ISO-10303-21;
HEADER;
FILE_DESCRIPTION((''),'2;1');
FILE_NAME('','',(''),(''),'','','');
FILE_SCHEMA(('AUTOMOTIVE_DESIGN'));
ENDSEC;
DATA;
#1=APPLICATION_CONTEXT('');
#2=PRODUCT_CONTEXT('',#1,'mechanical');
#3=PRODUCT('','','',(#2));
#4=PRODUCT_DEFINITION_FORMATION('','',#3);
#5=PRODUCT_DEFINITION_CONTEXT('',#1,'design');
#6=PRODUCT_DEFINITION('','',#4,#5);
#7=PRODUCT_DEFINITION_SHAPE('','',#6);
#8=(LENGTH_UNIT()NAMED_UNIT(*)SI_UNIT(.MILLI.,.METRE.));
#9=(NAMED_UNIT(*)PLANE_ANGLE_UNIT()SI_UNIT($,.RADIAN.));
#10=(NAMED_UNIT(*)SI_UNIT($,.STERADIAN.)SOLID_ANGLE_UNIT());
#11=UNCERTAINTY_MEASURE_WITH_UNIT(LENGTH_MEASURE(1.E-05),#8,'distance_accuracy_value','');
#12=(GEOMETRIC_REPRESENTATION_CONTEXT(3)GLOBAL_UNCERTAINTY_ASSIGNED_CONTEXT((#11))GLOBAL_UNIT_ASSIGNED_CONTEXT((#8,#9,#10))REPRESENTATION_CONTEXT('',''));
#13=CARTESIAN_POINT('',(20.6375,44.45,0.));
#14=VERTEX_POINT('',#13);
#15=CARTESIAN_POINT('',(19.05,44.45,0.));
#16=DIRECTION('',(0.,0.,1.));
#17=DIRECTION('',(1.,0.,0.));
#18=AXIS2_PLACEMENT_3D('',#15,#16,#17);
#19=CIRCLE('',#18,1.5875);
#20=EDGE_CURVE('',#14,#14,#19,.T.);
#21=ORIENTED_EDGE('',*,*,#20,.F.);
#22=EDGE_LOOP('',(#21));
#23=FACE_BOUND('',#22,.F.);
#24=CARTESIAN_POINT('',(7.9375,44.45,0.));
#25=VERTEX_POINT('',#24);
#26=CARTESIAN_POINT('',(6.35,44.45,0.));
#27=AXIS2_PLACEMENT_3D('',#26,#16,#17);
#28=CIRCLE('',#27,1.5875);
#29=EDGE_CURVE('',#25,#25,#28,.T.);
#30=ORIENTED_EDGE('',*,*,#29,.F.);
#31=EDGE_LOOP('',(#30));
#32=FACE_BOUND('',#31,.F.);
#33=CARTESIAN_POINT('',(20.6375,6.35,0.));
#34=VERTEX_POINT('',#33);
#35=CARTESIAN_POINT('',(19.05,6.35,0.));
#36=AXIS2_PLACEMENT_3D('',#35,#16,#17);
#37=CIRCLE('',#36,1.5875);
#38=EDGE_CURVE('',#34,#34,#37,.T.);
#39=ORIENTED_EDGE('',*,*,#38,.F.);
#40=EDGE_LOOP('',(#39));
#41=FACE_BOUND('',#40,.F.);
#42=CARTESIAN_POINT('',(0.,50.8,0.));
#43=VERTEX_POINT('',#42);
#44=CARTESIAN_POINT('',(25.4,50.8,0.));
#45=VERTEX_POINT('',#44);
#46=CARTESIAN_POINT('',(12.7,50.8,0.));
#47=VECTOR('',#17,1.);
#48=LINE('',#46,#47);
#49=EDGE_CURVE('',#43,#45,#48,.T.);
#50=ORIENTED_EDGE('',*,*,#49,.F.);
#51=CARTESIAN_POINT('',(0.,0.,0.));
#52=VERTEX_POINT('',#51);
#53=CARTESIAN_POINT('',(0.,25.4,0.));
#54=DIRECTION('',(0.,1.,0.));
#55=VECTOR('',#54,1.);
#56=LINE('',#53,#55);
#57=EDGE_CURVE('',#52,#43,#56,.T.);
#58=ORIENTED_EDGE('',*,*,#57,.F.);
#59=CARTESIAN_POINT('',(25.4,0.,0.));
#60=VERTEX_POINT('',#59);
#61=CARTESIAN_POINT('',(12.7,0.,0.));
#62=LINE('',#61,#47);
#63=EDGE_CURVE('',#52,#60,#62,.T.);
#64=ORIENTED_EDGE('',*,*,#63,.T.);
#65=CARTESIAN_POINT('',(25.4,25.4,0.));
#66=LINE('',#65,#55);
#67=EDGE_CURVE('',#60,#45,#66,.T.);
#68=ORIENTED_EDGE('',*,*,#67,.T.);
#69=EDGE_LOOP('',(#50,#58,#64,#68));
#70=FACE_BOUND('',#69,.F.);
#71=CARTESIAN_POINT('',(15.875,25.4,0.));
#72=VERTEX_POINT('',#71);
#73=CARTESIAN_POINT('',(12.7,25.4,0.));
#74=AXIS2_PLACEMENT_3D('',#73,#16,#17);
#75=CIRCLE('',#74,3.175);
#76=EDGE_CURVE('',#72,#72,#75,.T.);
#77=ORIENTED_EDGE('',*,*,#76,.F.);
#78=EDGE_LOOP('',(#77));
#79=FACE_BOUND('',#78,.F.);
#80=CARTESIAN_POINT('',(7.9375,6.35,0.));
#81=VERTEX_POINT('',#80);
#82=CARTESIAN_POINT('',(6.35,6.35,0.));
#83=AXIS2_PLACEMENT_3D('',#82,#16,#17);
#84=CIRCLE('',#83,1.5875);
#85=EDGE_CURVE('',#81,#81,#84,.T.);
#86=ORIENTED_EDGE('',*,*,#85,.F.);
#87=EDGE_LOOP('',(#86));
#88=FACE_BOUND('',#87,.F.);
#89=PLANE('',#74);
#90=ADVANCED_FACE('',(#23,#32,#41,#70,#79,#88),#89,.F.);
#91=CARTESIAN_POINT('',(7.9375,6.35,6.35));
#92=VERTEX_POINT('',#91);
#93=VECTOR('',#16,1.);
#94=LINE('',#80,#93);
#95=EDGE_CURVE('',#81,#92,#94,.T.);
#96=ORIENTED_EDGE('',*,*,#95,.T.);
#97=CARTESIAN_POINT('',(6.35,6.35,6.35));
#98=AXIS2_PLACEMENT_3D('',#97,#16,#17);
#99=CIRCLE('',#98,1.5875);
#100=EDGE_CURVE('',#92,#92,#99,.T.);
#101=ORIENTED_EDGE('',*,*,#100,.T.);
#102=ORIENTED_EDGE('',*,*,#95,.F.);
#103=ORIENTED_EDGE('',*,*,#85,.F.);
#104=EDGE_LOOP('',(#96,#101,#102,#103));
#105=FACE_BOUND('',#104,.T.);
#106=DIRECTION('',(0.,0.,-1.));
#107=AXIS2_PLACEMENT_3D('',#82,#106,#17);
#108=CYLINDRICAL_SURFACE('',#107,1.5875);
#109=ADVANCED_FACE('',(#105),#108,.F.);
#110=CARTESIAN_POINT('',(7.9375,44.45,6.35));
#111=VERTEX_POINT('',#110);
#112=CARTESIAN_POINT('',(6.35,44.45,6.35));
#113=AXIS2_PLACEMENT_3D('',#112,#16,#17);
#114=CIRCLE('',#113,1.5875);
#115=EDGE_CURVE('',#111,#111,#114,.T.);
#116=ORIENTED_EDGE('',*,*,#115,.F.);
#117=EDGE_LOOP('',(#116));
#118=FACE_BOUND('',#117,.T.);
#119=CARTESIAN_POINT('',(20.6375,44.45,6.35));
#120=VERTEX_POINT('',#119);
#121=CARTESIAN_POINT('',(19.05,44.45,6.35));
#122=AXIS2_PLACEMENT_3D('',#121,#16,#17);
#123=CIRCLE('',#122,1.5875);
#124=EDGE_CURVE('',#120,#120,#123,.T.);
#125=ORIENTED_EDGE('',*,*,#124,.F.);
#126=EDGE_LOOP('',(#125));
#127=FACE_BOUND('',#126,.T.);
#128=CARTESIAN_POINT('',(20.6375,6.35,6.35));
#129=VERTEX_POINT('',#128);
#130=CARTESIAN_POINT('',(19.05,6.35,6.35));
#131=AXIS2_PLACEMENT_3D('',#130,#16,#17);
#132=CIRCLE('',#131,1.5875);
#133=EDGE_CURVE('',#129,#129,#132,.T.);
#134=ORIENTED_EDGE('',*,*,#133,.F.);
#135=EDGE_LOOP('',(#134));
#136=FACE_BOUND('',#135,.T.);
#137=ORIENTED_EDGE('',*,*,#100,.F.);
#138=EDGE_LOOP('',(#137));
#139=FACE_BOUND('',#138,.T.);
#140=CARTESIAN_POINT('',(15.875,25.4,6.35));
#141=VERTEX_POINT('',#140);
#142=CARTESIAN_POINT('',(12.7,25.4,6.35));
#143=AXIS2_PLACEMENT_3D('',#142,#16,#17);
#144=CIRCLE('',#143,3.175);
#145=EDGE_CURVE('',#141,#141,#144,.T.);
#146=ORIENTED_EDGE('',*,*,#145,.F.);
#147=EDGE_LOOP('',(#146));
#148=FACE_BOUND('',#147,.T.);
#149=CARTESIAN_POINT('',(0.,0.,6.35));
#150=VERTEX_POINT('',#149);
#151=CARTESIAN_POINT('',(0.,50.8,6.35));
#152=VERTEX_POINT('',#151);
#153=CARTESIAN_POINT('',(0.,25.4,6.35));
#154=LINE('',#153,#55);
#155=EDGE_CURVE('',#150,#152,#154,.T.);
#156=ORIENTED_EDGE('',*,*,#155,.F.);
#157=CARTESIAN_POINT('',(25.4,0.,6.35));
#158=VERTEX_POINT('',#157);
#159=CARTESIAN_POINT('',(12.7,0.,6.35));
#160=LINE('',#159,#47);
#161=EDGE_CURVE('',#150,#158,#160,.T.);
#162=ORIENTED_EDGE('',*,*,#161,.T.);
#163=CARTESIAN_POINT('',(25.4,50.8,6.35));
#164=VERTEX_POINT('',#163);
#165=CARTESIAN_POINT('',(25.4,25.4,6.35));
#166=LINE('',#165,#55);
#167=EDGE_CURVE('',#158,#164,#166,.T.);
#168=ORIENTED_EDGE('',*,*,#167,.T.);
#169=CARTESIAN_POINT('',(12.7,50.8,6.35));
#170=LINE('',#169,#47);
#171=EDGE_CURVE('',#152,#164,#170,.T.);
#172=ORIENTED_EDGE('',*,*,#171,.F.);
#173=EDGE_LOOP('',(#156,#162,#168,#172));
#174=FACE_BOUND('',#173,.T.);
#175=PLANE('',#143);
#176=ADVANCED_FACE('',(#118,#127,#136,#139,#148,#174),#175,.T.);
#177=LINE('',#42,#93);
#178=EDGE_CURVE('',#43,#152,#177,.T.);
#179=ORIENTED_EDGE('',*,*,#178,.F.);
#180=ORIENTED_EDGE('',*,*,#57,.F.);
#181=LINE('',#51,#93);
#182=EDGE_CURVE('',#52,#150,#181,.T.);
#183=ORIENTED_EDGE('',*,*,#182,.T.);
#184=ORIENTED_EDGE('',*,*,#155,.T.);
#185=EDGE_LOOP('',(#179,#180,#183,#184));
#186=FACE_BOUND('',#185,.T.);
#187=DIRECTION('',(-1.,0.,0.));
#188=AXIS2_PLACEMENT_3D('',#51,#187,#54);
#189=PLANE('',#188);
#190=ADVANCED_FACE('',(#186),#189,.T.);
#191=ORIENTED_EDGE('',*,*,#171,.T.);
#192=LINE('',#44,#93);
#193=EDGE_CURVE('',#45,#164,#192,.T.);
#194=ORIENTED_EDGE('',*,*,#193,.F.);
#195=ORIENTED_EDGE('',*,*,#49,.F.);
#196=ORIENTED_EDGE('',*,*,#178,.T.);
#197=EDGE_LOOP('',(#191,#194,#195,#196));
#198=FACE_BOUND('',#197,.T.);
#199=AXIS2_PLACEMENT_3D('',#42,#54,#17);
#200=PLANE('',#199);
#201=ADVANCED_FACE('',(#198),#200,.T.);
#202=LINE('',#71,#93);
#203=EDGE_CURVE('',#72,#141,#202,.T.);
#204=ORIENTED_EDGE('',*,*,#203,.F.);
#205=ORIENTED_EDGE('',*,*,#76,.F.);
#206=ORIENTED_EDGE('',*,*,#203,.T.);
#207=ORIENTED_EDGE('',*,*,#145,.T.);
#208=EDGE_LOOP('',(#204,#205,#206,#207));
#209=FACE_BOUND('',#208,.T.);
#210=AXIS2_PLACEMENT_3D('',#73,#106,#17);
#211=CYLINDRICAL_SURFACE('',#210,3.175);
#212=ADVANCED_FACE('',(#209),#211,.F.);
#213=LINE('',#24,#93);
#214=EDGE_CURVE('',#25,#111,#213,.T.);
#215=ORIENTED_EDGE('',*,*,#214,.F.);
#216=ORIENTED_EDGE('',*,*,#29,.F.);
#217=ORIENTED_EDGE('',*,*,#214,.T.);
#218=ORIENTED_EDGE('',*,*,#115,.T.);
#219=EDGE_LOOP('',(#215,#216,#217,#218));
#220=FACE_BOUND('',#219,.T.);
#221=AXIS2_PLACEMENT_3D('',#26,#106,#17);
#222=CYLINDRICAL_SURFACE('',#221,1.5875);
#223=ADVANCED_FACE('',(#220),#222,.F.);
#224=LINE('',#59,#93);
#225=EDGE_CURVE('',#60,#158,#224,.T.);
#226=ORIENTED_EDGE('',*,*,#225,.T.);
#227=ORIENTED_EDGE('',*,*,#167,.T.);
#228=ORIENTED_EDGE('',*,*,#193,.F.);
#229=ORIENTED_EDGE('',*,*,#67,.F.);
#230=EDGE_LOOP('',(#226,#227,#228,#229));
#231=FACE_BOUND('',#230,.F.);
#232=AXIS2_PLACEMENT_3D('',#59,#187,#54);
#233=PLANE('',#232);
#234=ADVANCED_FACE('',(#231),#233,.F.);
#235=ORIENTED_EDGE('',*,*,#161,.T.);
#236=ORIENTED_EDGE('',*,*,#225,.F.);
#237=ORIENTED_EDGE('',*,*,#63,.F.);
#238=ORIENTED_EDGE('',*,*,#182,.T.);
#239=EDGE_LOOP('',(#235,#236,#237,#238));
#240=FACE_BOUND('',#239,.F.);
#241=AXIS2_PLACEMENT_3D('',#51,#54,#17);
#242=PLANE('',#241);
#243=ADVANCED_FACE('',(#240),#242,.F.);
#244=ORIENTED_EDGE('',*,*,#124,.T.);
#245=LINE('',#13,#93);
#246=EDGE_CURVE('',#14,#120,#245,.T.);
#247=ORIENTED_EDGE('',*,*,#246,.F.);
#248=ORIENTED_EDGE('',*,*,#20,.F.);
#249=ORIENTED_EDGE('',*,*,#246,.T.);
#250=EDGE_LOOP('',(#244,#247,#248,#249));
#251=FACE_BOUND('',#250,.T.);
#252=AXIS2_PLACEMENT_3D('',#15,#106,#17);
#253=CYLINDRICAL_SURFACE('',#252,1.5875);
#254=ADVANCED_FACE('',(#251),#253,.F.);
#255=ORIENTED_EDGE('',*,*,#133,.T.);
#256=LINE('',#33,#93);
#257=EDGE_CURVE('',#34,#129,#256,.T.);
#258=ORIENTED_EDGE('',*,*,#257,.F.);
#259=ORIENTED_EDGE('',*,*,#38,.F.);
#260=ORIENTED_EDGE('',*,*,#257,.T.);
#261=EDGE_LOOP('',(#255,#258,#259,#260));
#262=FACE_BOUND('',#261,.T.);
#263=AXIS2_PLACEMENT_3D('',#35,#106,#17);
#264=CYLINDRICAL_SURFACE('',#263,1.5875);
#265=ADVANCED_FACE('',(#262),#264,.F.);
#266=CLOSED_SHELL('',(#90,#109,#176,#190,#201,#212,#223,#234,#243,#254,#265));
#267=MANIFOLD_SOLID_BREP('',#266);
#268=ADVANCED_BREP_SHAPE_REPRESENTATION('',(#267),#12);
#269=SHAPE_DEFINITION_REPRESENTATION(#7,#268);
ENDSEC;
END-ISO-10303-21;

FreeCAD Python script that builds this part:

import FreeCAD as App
import Part
import Sketcher
from FreeCAD import Vector
Q = App.Units.Quantity

doc = App.newDocument("Part")
body = doc.addObject("PartDesign::Body", "Body")

# Sketch on XY plane
sketch1 = body.newObject("Sketcher::SketchObject", "Sketch")
sketch1.AttachmentSupport = (doc.getObject("XY_Plane"), [""])
sketch1.MapMode = "FlatFace"
sketch1.addGeometry([
    Part.LineSegment(Vector(0, 50.8, 0), Vector(0, 0, 0)),  # 0
    Part.LineSegment(Vector(0, 0, 0), Vector(25.4, 0, 0)),  # 1
    Part.LineSegment(Vector(25.4, 0, 0), Vector(25.4, 50.8, 0)),  # 2
    Part.LineSegment(Vector(25.4, 50.8, 0), Vector(0, 50.8, 0)),  # 3
    Part.Circle(Vector(6.3, 6.3, 0), Vector(0, 0, 1), 1.6),  # 4
    Part.Circle(Vector(19.1, 6.3, 0), Vector(0, 0, 1), 1.6),  # 5
    Part.Circle(Vector(12.7, 25.4, 0), Vector(0, 0, 1), 3.2),  # 6
    Part.Circle(Vector(6.3, 44.5, 0), Vector(0, 0, 1), 1.6),  # 7
    Part.Circle(Vector(19.1, 44.5, 0), Vector(0, 0, 1), 1.6),  # 8
], False)
sketch1.addConstraint([
    Sketcher.Constraint("Coincident", 0, 2, 1, 1),
    Sketcher.Constraint("Coincident", 1, 2, 2, 1),
    Sketcher.Constraint("Coincident", 2, 2, 3, 1),
    Sketcher.Constraint("Coincident", 3, 2, 0, 1),
    Sketcher.Constraint("Vertical", 0),
    Sketcher.Constraint("Horizontal", 1),
    Sketcher.Constraint("Vertical", 2),
    Sketcher.Constraint("Horizontal", 3),
    Sketcher.Constraint("Coincident", 0, 2, -1, 1),
    Sketcher.Constraint("Equal", 4, 5),
    Sketcher.Constraint("Equal", 5, 7),
    Sketcher.Constraint("Equal", 7, 8),
    Sketcher.Constraint("Horizontal", 4, 3, 5, 3),
    Sketcher.Constraint("Horizontal", 7, 3, 8, 3),
    Sketcher.Constraint("Vertical", 4, 3, 7, 3),
    Sketcher.Constraint("Vertical", 5, 3, 8, 3),
    Sketcher.Constraint("Diameter", 6, Q("0.25 in")),
    Sketcher.Constraint("DistanceX", 1, 1, 1, 2, Q("1 in")),
    Sketcher.Constraint("DistanceY", 0, 2, 0, 1, Q("2 in")),
    Sketcher.Constraint("Diameter", 4, Q("0.125 in")),
    Sketcher.Constraint("DistanceY", -1, 1, 6, 3, Q("1 in")),
    Sketcher.Constraint("DistanceX", -1, 1, 6, 3, Q("0.5 in")),
    Sketcher.Constraint("DistanceX", 4, 3, 5, 3, Q("0.5 in")),
    Sketcher.Constraint("DistanceY", 4, 3, 7, 3, Q("1.5 in")),
    Sketcher.Constraint("DistanceX", -1, 1, 4, 3, Q("0.25 in")),
    Sketcher.Constraint("DistanceY", -1, 1, 4, 3, Q("0.25 in")),
])
pad1 = body.newObject("PartDesign::Pad", "Pad")
pad1.Profile = sketch1
pad1.Length = Q("0.25 in")

doc.recompute()
